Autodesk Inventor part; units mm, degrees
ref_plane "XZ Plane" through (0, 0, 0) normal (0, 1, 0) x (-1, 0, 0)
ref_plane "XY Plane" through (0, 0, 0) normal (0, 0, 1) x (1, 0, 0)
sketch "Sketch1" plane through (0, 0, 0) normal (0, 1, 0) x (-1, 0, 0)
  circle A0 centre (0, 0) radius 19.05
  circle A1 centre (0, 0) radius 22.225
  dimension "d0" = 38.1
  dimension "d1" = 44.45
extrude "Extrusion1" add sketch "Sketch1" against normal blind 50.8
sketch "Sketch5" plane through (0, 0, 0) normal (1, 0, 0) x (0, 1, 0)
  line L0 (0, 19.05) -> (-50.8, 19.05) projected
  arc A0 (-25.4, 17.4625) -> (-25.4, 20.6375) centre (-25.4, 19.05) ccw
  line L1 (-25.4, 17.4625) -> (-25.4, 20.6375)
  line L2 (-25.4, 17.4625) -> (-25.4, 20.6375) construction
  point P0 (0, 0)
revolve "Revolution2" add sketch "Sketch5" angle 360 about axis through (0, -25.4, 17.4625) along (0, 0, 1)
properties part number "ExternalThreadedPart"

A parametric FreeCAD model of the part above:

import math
import FreeCAD as App
import Part
import Sketcher

V = App.Vector
Q = App.Units.Quantity

doc = App.newDocument("Part")
params = doc.addObject("Spreadsheet::Sheet", "Params")
for row, (alias, value) in enumerate([
    ("sketch1_diameter", "1.5 in"),
    ("sketch1_diameter2", "1.75 in"),
    ("pad1_length", "2 in"),
    ("sketch2_radius", "0.0625 in"),
    ("revolution_angle", "360 deg"),
], start=1):
    params.set(f"A{row}", alias)
    params.set(f"B{row}", "=" + value)
    params.setAlias(f"B{row}", alias)

body = doc.addObject("PartDesign::Body", "Body")

# Sketch on XZ plane
sketch1 = body.newObject("Sketcher::SketchObject", "Sketch")
sketch1.AttachmentSupport = (doc.getObject("XZ_Plane"), [""])
sketch1.MapMode = "FlatFace"
sketch1.addGeometry(Part.Circle(V(0, 0, 0), V(0, 0, 1), 22.225), False)
sketch1.addGeometry(Part.Circle(V(0, 0, 0), V(0, 0, 1), 19.05), False)
sketch1.addConstraint(Sketcher.Constraint("Coincident", 0, 3, -1, 1))
sketch1.addConstraint(Sketcher.Constraint("Coincident", 1, 3, -1, 1))
sketch1.addConstraint(Sketcher.Constraint("Diameter", 1, Q("1.5 in")))
sketch1.addConstraint(Sketcher.Constraint("Diameter", 0, Q("1.75 in")))
sketch1.setExpression("Constraints[2]", "Params.sketch1_diameter")
sketch1.setExpression("Constraints[3]", "Params.sketch1_diameter2")
pad1 = body.newObject("PartDesign::Pad", "Pad")
pad1.Profile = sketch1
pad1.setExpression("Length", "Params.pad1_length")

# Sketch on YZ plane
sketch2 = body.newObject("Sketcher::SketchObject", "Sketch001")
sketch2.AttachmentSupport = (doc.getObject("YZ_Plane"), [""])
sketch2.MapMode = "FlatFace"
sketch2.addGeometry(Part.ArcOfCircle(Part.Circle(V(-25.4, 19.05, 0), V(0, 0, 1), 1.5875), math.radians(-90), math.radians(90)), False)
sketch2.addGeometry(Part.LineSegment(V(-25.4, 20.6375, 0), V(-25.4, 17.4625, 0)), False)
sketch2.addGeometry(Part.LineSegment(V(-25.4, 17.4625, 0), V(-25.4, 20.6375, 0)), True)  # axis
sketch2.addConstraint(Sketcher.Constraint("Coincident", 0, 1, 1, 2))
sketch2.addConstraint(Sketcher.Constraint("Coincident", 1, 1, 0, 2))
sketch2.addConstraint(Sketcher.Constraint("Vertical", 1))
sketch2.addConstraint(Sketcher.Constraint("Vertical", 2))
sketch2.addConstraint(Sketcher.Constraint("Coincident", 2, 1, 0, 1))
sketch2.addConstraint(Sketcher.Constraint("Equal", 1, 2))
sketch2.addConstraint(Sketcher.Constraint("DistanceX", 0, 3, -1, 1, Q("1 in")))
sketch2.addConstraint(Sketcher.Constraint("DistanceX", 0, 1, -1, 1, Q("1 in")))
sketch2.addConstraint(Sketcher.Constraint("Radius", 0, Q("0.0625 in")))
sketch2.addConstraint(Sketcher.Constraint("DistanceY", -1, 1, 0, 3, Q("0.75 in")))
sketch2.setExpression("Constraints[8]", "Params.sketch2_radius")
revolution = body.newObject("PartDesign::Revolution", "Revolution")
revolution.Profile = sketch2
revolution.ReferenceAxis = (sketch2, ["Axis0"])
revolution.setExpression("Angle", "Params.revolution_angle")

doc.recompute()
